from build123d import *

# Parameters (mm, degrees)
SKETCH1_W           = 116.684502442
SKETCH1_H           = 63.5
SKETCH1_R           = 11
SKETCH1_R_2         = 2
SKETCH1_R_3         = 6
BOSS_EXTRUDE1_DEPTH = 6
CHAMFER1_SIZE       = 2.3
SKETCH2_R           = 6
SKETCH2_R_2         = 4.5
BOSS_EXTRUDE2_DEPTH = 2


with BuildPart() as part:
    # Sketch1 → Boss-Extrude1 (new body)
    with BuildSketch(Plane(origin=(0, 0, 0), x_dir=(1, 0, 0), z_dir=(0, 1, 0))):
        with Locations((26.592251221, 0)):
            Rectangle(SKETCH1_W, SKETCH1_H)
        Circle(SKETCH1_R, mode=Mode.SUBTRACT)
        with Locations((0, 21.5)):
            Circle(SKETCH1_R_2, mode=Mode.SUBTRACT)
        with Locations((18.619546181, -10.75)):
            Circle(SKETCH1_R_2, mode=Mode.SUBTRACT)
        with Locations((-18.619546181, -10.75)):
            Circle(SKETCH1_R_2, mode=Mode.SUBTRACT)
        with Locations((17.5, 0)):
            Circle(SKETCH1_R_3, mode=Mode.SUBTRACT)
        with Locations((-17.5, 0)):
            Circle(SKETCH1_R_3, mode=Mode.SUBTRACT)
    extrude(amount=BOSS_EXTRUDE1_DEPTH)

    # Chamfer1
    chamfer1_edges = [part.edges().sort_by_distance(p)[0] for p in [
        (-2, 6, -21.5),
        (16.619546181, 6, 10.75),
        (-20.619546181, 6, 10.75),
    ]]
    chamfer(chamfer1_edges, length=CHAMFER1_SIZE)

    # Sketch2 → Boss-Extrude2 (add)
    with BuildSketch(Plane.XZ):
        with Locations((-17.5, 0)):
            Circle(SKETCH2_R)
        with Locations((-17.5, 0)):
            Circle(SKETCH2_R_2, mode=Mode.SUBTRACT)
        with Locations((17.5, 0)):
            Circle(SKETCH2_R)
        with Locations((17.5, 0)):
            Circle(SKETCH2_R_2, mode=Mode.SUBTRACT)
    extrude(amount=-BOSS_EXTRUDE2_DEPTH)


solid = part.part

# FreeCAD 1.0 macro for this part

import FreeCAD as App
import Part
import Sketcher


def edges_at(feature, points):
    """Names of the edges that pass closest to the given points."""
    edges = feature.Shape.Edges
    near = lambda p: min(range(len(edges)), key=lambda i: edges[i].distToShape(Part.Vertex(*p))[0])
    return sorted({f"Edge{near(p) + 1}" for p in points})

doc = App.newDocument("Part")
body = doc.addObject("PartDesign::Body", "Body")

# Sketch on XZ plane
sketch1 = body.newObject("Sketcher::SketchObject", "Sketch")
sketch1.AttachmentSupport = (doc.getObject("XZ_Plane"), [""])
sketch1.MapMode = "FlatFace"
sketch1.addGeometry([
    Part.LineSegment(App.Vector(-31.75, -31.75, 0), App.Vector(-31.75, 31.75, 0)),  # 0
    Part.LineSegment(App.Vector(-31.75, 31.75, 0), App.Vector(84.934502, 31.75, 0)),  # 1
    Part.LineSegment(App.Vector(84.934502, 31.75, 0), App.Vector(84.934502, -31.75, 0)),  # 2
    Part.LineSegment(App.Vector(84.934502, -31.75, 0), App.Vector(-31.75, -31.75, 0)),  # 3
    Part.Circle(App.Vector(-18.619546, 10.75, 0), App.Vector(0, 0, 1), 2),  # 4
    Part.Circle(App.Vector(-17.5, 0, 0), App.Vector(0, 0, 1), 6),  # 5
    Part.Circle(App.Vector(18.619546, 10.75, 0), App.Vector(0, 0, 1), 2),  # 6
    Part.Circle(App.Vector(0, 0, 0), App.Vector(0, 0, 1), 11),  # 7
    Part.Circle(App.Vector(17.5, 0, 0), App.Vector(0, 0, 1), 6),  # 8
    Part.Circle(App.Vector(0, -21.5, 0), App.Vector(0, 0, 1), 2),  # 9
], False)
sketch1.addConstraint([
    Sketcher.Constraint("Coincident", 0, 2, 1, 1),
    Sketcher.Constraint("Coincident", 1, 2, 2, 1),
    Sketcher.Constraint("Coincident", 2, 2, 3, 1),
    Sketcher.Constraint("Coincident", 3, 2, 0, 1),
    Sketcher.Constraint("Vertical", 0),
    Sketcher.Constraint("Horizontal", 1),
    Sketcher.Constraint("Vertical", 2),
    Sketcher.Constraint("Horizontal", 3),
    Sketcher.Constraint("Coincident", 7, 3, -1, 1),
    Sketcher.Constraint("Equal", 4, 6),
    Sketcher.Constraint("Equal", 5, 8),
    Sketcher.Constraint("Equal", 6, 9),
    Sketcher.Constraint("Symmetric", 5, 3, 8, 3, -1, 1),
    Sketcher.Constraint("Symmetric", 4, 3, 6, 3, -2),
    Sketcher.Constraint("PointOnObject", 5, 3, -1),
    Sketcher.Constraint("PointOnObject", 9, 3, -2),
    Sketcher.Constraint("Diameter", 4, 4.0),
    Sketcher.Constraint("Diameter", 5, 12.0),
    Sketcher.Constraint("Diameter", 7, 22.0),
    Sketcher.Constraint("DistanceY", 0, 1, 0, 2, 63.5),
    Sketcher.Constraint("DistanceX", 5, 3, 8, 3, 35.0),
    Sketcher.Constraint("DistanceY", 4, 3, 0, 2, 21.0),
    Sketcher.Constraint("DistanceY", 9, 3, -1, 1, 21.5),
    Sketcher.Constraint("DistanceY", -1, 1, 4, 3, 10.75),
    Sketcher.Constraint("DistanceX", 0, 2, -1, 1, 31.75),
    Sketcher.Constraint("DistanceX", 1, 1, 1, 2, 116.684502),
    Sketcher.Constraint("DistanceX", 4, 3, 1, 2, 103.554049),
])
pad1 = body.newObject("PartDesign::Pad", "Pad")
pad1.Profile = sketch1
pad1.Length = 6
pad1.Reversed = True
doc.recompute()

chamfer = body.newObject("PartDesign::Chamfer", "Chamfer")
chamfer.Base = (pad1, edges_at(pad1, [(-2, 6, -21.5), (16.62, 6, 10.75), (-20.62, 6, 10.75)]))
chamfer.Size = 2.3

# Sketch on XZ plane
sketch2 = body.newObject("Sketcher::SketchObject", "Sketch001")
sketch2.AttachmentSupport = (doc.getObject("XZ_Plane"), [""])
sketch2.MapMode = "FlatFace"
sketch2.addGeometry([
    Part.Circle(App.Vector(-17.5, 0, 0), App.Vector(0, 0, 1), 6),
    Part.Circle(App.Vector(-17.5, 0, 0), App.Vector(0, 0, 1), 4.5),
    Part.Circle(App.Vector(17.5, 0, 0), App.Vector(0, 0, 1), 6),
    Part.Circle(App.Vector(17.5, 0, 0), App.Vector(0, 0, 1), 4.5),
], False)
sketch2.addConstraint([
    Sketcher.Constraint("Coincident", 1, 3, 0, 3),
    Sketcher.Constraint("Coincident", 3, 3, 2, 3),
    Sketcher.Constraint("Equal", 0, 2),
    Sketcher.Constraint("Equal", 1, 3),
    Sketcher.Constraint("Symmetric", 0, 3, 2, 3, -1, 1),
    Sketcher.Constraint("PointOnObject", 0, 3, -1),
    Sketcher.Constraint("Diameter", 0, 12.0),
    Sketcher.Constraint("Diameter", 1, 9.0),
    Sketcher.Constraint("DistanceX", 0, 3, 2, 3, 35.0),
])
pad2 = body.newObject("PartDesign::Pad", "Pad001")
pad2.Profile = sketch2
pad2.Length = 2
pad2.Reversed = True

doc.recompute()
